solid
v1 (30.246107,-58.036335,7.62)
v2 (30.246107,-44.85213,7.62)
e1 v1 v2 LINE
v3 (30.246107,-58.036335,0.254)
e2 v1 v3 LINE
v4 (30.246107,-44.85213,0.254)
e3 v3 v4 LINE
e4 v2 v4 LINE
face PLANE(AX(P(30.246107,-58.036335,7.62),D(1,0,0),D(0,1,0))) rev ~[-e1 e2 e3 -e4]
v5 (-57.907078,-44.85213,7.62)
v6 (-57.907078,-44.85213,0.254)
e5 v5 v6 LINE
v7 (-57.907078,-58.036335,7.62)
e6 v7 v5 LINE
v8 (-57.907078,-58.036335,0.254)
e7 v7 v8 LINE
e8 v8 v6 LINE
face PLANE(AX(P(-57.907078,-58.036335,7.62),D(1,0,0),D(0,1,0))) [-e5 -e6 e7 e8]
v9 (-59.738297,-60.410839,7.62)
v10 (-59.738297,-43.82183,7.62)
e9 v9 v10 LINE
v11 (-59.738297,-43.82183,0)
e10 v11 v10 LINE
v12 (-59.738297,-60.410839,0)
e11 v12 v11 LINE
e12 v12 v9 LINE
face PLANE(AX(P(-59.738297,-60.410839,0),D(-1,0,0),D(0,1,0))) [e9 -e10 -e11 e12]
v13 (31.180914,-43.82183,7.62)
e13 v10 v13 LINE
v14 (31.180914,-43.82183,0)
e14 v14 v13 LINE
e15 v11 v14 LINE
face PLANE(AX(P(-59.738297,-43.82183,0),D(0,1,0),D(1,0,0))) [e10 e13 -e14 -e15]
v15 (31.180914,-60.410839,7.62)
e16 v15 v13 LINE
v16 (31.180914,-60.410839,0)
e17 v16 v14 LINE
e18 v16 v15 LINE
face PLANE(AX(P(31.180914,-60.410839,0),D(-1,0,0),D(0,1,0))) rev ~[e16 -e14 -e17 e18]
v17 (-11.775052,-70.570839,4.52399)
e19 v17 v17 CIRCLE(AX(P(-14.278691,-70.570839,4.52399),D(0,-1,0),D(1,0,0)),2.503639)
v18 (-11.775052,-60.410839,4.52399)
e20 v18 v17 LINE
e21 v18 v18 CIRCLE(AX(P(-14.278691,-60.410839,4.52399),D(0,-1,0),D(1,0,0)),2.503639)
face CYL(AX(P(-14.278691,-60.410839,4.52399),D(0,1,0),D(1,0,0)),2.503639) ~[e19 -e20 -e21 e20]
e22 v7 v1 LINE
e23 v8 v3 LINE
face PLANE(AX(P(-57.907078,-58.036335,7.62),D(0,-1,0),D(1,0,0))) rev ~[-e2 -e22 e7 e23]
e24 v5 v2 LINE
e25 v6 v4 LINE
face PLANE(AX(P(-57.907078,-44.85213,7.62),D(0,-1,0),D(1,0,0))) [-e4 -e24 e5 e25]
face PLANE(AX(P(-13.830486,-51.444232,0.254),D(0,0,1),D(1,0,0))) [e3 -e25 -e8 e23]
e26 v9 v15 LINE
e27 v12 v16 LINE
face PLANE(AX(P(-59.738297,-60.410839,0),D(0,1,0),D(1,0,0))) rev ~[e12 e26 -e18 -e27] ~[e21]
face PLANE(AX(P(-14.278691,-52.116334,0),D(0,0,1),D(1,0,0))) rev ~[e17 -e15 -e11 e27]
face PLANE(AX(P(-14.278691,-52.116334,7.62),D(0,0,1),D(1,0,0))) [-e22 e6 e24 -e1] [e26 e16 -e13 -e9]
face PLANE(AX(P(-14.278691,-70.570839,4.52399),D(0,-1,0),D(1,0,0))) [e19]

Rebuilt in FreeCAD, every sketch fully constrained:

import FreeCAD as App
import Part
import Sketcher
from FreeCAD import Vector
Q = App.Units.Quantity


def add_polygon(sketch, points):
    """Adds a closed chain of lines whose ends are joined by coincident constraints."""
    first, n = sketch.GeometryCount, len(points)
    for a, b in zip(points, points[1:] + points[:1]):
        sketch.addGeometry(Part.LineSegment(App.Vector(*a, 0), App.Vector(*b, 0)), False)
    for i in range(n):
        sketch.addConstraint(Sketcher.Constraint("Coincident", first + i, 2, first + (i + 1) % n, 1))

doc = App.newDocument("Part")
params = doc.addObject("Spreadsheet::Sheet", "Params")
for row, (alias, value) in enumerate([
    ("pad1_length", "0.3 in"),
    ("pad2_length", "0.4 in"),
    ("pocket1_length", "0.29 in"),
], start=1):
    params.set(f"A{row}", alias)
    params.set(f"B{row}", "=" + value)
    params.setAlias(f"B{row}", alias)

body = doc.addObject("PartDesign::Body", "Body")

sketch1 = body.newObject("Sketcher::SketchObject", "Sketch")
sketch1.AttachmentSupport = (doc.getObject("XY_Plane"), [""])
sketch1.MapMode = "FlatFace"
add_polygon(sketch1, [(-60, -44), (-60, -60), (31, -60), (31, -44)])
sketch1.addConstraint([
    Sketcher.Constraint("Vertical", 0),
    Sketcher.Constraint("Horizontal", 1),
    Sketcher.Constraint("Vertical", 2),
    Sketcher.Constraint("Horizontal", 3),
    Sketcher.Constraint("DistanceX", 1, 1, 1, 2, Q("90.919212 mm")),
    Sketcher.Constraint("DistanceY", 0, 2, 0, 1, Q("16.589008 mm")),
    Sketcher.Constraint("DistanceY", 0, 2, -1, 1, Q("60.410839 mm")),
    Sketcher.Constraint("DistanceX", 0, 2, -1, 1, Q("59.738297 mm")),
])
pad1 = body.newObject("PartDesign::Pad", "Pad")
pad1.Profile = sketch1
pad1.setExpression("Length", "Params.pad1_length")

sketch2 = body.newObject("Sketcher::SketchObject", "Sketch001")
sketch2.AttachmentSupport = (doc.getObject("XZ_Plane"), [""])
sketch2.MapMode = "FlatFace"
sketch2.AttachmentOffset = App.Placement(Vector(0, 0, 60.410839), App.Rotation())
sketch2.addGeometry(Part.Circle(Vector(-14.3, 4.5, 0), Vector(0, 0, 1), 2.5), False)
sketch2.addConstraint([
    Sketcher.Constraint("Diameter", 0, Q("5.007278 mm")),
    Sketcher.Constraint("DistanceX", 0, 3, -1, 1, Q("14.278691 mm")),
    Sketcher.Constraint("DistanceY", -1, 1, 0, 3, Q("4.52399 mm")),
])
pad2 = body.newObject("PartDesign::Pad", "Pad001")
pad2.Profile = sketch2
pad2.setExpression("Length", "Params.pad2_length")

sketch3 = body.newObject("Sketcher::SketchObject", "Sketch002")
sketch3.AttachmentSupport = (doc.getObject("XY_Plane"), [""])
sketch3.MapMode = "FlatFace"
sketch3.AttachmentOffset = App.Placement(Vector(0, 0, 0.3 * 25.4), App.Rotation())
add_polygon(sketch3, [(-58, -45), (-58, -58), (30, -58), (30, -45)])
sketch3.addConstraint([
    Sketcher.Constraint("Vertical", 0),
    Sketcher.Constraint("Horizontal", 1),
    Sketcher.Constraint("Vertical", 2),
    Sketcher.Constraint("Horizontal", 3),
    Sketcher.Constraint("DistanceX", 1, 1, 1, 2, Q("88.153185 mm")),
    Sketcher.Constraint("DistanceY", 0, 2, 0, 1, Q("13.184205 mm")),
    Sketcher.Constraint("DistanceX", 0, 2, -1, 1, Q("57.907078 mm")),
    Sketcher.Constraint("DistanceY", 2, 2, -1, 1, Q("44.85213 mm")),
])
pocket1 = body.newObject("PartDesign::Pocket", "Pocket")
pocket1.Profile = sketch3
pocket1.setExpression("Length", "Params.pocket1_length")

doc.recompute()
